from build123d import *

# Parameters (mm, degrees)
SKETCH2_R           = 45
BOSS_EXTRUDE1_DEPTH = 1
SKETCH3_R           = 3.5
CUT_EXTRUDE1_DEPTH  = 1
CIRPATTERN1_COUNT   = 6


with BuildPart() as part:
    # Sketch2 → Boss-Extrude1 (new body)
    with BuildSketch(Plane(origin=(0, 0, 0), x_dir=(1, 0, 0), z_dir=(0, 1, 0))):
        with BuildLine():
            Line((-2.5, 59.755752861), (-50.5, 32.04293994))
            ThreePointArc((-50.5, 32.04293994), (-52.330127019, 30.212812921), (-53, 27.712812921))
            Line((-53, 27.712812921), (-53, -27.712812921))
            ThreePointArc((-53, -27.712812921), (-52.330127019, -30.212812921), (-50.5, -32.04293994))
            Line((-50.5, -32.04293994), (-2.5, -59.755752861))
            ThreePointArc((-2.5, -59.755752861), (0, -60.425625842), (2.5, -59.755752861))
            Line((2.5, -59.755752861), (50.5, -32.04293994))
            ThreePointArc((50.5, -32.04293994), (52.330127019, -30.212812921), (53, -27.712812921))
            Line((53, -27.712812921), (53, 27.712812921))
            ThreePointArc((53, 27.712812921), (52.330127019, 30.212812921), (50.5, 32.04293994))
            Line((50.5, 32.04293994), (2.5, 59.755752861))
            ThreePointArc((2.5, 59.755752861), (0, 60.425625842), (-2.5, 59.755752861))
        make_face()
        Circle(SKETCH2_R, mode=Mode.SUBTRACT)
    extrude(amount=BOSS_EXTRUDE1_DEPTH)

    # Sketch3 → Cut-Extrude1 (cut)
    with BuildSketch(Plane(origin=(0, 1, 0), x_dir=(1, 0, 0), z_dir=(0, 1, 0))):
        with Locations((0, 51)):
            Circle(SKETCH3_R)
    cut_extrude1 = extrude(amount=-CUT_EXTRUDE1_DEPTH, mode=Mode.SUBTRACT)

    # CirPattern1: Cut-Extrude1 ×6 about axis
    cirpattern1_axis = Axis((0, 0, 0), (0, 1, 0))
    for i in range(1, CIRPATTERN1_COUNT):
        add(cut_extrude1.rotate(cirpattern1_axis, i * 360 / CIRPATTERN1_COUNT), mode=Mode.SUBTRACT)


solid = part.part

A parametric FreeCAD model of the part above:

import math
import FreeCAD as App
import Part
import Sketcher
from FreeCAD import Vector
Q = App.Units.Quantity

doc = App.newDocument("Part")
body = doc.addObject("PartDesign::Body", "Body")

# Sketch on XZ plane
sketch1 = body.newObject("Sketcher::SketchObject", "Sketch")
sketch1.AttachmentSupport = (doc.getObject("XZ_Plane"), [""])
sketch1.MapMode = "FlatFace"
sketch1.addGeometry(Part.LineSegment(Vector(-2, -60, 0), Vector(-50, -32, 0)), False)
sketch1.addGeometry(Part.ArcOfCircle(Part.Circle(Vector(-48, -28, 0), Vector(0, 0, 1), 5), math.radians(180), math.radians(240)), False)
sketch1.addGeometry(Part.LineSegment(Vector(-53, -28, 0), Vector(-53, 28, 0)), False)
sketch1.addGeometry(Part.ArcOfCircle(Part.Circle(Vector(-48, 28, 0), Vector(0, 0, 1), 5), math.radians(120), math.radians(180)), False)
sketch1.addGeometry(Part.LineSegment(Vector(-50, 32, 0), Vector(-2, 60, 0)), False)
sketch1.addGeometry(Part.ArcOfCircle(Part.Circle(Vector(0, 55, 0), Vector(0, 0, 1), 5), math.radians(60), math.radians(120)), False)
sketch1.addGeometry(Part.LineSegment(Vector(2, 60, 0), Vector(50, 32, 0)), False)
sketch1.addGeometry(Part.ArcOfCircle(Part.Circle(Vector(48, 28, 0), Vector(0, 0, 1), 5), math.radians(0), math.radians(60)), False)
sketch1.addGeometry(Part.LineSegment(Vector(53, 28, 0), Vector(53, -28, 0)), False)
sketch1.addGeometry(Part.ArcOfCircle(Part.Circle(Vector(48, -28, 0), Vector(0, 0, 1), 5), math.radians(-60), math.radians(0)), False)
sketch1.addGeometry(Part.LineSegment(Vector(50, -32, 0), Vector(2, -60, 0)), False)
sketch1.addGeometry(Part.ArcOfCircle(Part.Circle(Vector(0, -55, 0), Vector(0, 0, 1), 5), math.radians(-120), math.radians(-60)), False)
sketch1.addGeometry(Part.Circle(Vector(0, 0, 0), Vector(0, 0, 1), 45), False)
sketch1.addConstraint(Sketcher.Constraint("Tangent", 0, 2, 1, 2))
sketch1.addConstraint(Sketcher.Constraint("Tangent", 1, 1, 2, 1))
sketch1.addConstraint(Sketcher.Constraint("Tangent", 2, 2, 3, 2))
sketch1.addConstraint(Sketcher.Constraint("Tangent", 3, 1, 4, 1))
sketch1.addConstraint(Sketcher.Constraint("Tangent", 4, 2, 5, 2))
sketch1.addConstraint(Sketcher.Constraint("Tangent", 5, 1, 6, 1))
sketch1.addConstraint(Sketcher.Constraint("Tangent", 6, 2, 7, 2))
sketch1.addConstraint(Sketcher.Constraint("Tangent", 7, 1, 8, 1))
sketch1.addConstraint(Sketcher.Constraint("Tangent", 8, 2, 9, 2))
sketch1.addConstraint(Sketcher.Constraint("Tangent", 9, 1, 10, 1))
sketch1.addConstraint(Sketcher.Constraint("Tangent", 10, 2, 11, 2))
sketch1.addConstraint(Sketcher.Constraint("Tangent", 11, 1, 0, 1))
sketch1.addConstraint(Sketcher.Constraint("Vertical", 2))
sketch1.addConstraint(Sketcher.Constraint("Vertical", 8))
sketch1.addConstraint(Sketcher.Constraint("Coincident", 12, 3, -1, 1))
sketch1.addConstraint(Sketcher.Constraint("Equal", 1, 3))
sketch1.addConstraint(Sketcher.Constraint("Equal", 3, 5))
sketch1.addConstraint(Sketcher.Constraint("Equal", 5, 7))
sketch1.addConstraint(Sketcher.Constraint("Equal", 7, 9))
sketch1.addConstraint(Sketcher.Constraint("Equal", 9, 11))
sketch1.addConstraint(Sketcher.Constraint("Symmetric", 1, 3, 7, 3, -1, 1))
sketch1.addConstraint(Sketcher.Constraint("Symmetric", 5, 3, 11, 3, -1, 1))
sketch1.addConstraint(Sketcher.Constraint("Symmetric", 4, 2, 5, 1, -2))
sketch1.addConstraint(Sketcher.Constraint("Parallel", 4, 10))
sketch1.addConstraint(Sketcher.Constraint("Diameter", 12, Q("90 mm")))
sketch1.addConstraint(Sketcher.Constraint("Radius", 1, Q("5 mm")))
sketch1.addConstraint(Sketcher.Constraint("Angle", 0, Q("150 deg")))
sketch1.addConstraint(Sketcher.Constraint("DistanceX", 1, 3, -1, 1, Q("48 mm")))
sketch1.addConstraint(Sketcher.Constraint("DistanceY", 2, 1, 2, 2, Q("55.425626 mm")))
pad1 = body.newObject("PartDesign::Pad", "Pad")
pad1.Profile = sketch1
pad1.Length = 1
pad1.Reversed = True

# Sketch on XZ plane
sketch2 = body.newObject("Sketcher::SketchObject", "Sketch001")
sketch2.AttachmentSupport = (doc.getObject("XZ_Plane"), [""])
sketch2.MapMode = "FlatFace"
sketch2.AttachmentOffset = App.Placement(Vector(0, 0, -1), App.Rotation())
sketch2.addGeometry(Part.Circle(Vector(0, -51, 0), Vector(0, 0, 1), 3.5), False)
sketch2.addConstraint(Sketcher.Constraint("PointOnObject", 0, 3, -2))
sketch2.addConstraint(Sketcher.Constraint("Diameter", 0, Q("7 mm")))
sketch2.addConstraint(Sketcher.Constraint("DistanceY", 0, 3, -1, 1, Q("51 mm")))
pocket1 = body.newObject("PartDesign::Pocket", "Pocket")
pocket1.Profile = sketch2
pocket1.Length = 1
pocket1.Reversed = True
doc.recompute()

polarpattern = body.newObject("PartDesign::PolarPattern", "PolarPattern")
polarpattern.Originals = [pocket1]
polarpattern.Axis = (doc.getObject("Y_Axis"), [""])
polarpattern.Angle = 360
polarpattern.Occurrences = 6
body.Tip = polarpattern

doc.recompute()
